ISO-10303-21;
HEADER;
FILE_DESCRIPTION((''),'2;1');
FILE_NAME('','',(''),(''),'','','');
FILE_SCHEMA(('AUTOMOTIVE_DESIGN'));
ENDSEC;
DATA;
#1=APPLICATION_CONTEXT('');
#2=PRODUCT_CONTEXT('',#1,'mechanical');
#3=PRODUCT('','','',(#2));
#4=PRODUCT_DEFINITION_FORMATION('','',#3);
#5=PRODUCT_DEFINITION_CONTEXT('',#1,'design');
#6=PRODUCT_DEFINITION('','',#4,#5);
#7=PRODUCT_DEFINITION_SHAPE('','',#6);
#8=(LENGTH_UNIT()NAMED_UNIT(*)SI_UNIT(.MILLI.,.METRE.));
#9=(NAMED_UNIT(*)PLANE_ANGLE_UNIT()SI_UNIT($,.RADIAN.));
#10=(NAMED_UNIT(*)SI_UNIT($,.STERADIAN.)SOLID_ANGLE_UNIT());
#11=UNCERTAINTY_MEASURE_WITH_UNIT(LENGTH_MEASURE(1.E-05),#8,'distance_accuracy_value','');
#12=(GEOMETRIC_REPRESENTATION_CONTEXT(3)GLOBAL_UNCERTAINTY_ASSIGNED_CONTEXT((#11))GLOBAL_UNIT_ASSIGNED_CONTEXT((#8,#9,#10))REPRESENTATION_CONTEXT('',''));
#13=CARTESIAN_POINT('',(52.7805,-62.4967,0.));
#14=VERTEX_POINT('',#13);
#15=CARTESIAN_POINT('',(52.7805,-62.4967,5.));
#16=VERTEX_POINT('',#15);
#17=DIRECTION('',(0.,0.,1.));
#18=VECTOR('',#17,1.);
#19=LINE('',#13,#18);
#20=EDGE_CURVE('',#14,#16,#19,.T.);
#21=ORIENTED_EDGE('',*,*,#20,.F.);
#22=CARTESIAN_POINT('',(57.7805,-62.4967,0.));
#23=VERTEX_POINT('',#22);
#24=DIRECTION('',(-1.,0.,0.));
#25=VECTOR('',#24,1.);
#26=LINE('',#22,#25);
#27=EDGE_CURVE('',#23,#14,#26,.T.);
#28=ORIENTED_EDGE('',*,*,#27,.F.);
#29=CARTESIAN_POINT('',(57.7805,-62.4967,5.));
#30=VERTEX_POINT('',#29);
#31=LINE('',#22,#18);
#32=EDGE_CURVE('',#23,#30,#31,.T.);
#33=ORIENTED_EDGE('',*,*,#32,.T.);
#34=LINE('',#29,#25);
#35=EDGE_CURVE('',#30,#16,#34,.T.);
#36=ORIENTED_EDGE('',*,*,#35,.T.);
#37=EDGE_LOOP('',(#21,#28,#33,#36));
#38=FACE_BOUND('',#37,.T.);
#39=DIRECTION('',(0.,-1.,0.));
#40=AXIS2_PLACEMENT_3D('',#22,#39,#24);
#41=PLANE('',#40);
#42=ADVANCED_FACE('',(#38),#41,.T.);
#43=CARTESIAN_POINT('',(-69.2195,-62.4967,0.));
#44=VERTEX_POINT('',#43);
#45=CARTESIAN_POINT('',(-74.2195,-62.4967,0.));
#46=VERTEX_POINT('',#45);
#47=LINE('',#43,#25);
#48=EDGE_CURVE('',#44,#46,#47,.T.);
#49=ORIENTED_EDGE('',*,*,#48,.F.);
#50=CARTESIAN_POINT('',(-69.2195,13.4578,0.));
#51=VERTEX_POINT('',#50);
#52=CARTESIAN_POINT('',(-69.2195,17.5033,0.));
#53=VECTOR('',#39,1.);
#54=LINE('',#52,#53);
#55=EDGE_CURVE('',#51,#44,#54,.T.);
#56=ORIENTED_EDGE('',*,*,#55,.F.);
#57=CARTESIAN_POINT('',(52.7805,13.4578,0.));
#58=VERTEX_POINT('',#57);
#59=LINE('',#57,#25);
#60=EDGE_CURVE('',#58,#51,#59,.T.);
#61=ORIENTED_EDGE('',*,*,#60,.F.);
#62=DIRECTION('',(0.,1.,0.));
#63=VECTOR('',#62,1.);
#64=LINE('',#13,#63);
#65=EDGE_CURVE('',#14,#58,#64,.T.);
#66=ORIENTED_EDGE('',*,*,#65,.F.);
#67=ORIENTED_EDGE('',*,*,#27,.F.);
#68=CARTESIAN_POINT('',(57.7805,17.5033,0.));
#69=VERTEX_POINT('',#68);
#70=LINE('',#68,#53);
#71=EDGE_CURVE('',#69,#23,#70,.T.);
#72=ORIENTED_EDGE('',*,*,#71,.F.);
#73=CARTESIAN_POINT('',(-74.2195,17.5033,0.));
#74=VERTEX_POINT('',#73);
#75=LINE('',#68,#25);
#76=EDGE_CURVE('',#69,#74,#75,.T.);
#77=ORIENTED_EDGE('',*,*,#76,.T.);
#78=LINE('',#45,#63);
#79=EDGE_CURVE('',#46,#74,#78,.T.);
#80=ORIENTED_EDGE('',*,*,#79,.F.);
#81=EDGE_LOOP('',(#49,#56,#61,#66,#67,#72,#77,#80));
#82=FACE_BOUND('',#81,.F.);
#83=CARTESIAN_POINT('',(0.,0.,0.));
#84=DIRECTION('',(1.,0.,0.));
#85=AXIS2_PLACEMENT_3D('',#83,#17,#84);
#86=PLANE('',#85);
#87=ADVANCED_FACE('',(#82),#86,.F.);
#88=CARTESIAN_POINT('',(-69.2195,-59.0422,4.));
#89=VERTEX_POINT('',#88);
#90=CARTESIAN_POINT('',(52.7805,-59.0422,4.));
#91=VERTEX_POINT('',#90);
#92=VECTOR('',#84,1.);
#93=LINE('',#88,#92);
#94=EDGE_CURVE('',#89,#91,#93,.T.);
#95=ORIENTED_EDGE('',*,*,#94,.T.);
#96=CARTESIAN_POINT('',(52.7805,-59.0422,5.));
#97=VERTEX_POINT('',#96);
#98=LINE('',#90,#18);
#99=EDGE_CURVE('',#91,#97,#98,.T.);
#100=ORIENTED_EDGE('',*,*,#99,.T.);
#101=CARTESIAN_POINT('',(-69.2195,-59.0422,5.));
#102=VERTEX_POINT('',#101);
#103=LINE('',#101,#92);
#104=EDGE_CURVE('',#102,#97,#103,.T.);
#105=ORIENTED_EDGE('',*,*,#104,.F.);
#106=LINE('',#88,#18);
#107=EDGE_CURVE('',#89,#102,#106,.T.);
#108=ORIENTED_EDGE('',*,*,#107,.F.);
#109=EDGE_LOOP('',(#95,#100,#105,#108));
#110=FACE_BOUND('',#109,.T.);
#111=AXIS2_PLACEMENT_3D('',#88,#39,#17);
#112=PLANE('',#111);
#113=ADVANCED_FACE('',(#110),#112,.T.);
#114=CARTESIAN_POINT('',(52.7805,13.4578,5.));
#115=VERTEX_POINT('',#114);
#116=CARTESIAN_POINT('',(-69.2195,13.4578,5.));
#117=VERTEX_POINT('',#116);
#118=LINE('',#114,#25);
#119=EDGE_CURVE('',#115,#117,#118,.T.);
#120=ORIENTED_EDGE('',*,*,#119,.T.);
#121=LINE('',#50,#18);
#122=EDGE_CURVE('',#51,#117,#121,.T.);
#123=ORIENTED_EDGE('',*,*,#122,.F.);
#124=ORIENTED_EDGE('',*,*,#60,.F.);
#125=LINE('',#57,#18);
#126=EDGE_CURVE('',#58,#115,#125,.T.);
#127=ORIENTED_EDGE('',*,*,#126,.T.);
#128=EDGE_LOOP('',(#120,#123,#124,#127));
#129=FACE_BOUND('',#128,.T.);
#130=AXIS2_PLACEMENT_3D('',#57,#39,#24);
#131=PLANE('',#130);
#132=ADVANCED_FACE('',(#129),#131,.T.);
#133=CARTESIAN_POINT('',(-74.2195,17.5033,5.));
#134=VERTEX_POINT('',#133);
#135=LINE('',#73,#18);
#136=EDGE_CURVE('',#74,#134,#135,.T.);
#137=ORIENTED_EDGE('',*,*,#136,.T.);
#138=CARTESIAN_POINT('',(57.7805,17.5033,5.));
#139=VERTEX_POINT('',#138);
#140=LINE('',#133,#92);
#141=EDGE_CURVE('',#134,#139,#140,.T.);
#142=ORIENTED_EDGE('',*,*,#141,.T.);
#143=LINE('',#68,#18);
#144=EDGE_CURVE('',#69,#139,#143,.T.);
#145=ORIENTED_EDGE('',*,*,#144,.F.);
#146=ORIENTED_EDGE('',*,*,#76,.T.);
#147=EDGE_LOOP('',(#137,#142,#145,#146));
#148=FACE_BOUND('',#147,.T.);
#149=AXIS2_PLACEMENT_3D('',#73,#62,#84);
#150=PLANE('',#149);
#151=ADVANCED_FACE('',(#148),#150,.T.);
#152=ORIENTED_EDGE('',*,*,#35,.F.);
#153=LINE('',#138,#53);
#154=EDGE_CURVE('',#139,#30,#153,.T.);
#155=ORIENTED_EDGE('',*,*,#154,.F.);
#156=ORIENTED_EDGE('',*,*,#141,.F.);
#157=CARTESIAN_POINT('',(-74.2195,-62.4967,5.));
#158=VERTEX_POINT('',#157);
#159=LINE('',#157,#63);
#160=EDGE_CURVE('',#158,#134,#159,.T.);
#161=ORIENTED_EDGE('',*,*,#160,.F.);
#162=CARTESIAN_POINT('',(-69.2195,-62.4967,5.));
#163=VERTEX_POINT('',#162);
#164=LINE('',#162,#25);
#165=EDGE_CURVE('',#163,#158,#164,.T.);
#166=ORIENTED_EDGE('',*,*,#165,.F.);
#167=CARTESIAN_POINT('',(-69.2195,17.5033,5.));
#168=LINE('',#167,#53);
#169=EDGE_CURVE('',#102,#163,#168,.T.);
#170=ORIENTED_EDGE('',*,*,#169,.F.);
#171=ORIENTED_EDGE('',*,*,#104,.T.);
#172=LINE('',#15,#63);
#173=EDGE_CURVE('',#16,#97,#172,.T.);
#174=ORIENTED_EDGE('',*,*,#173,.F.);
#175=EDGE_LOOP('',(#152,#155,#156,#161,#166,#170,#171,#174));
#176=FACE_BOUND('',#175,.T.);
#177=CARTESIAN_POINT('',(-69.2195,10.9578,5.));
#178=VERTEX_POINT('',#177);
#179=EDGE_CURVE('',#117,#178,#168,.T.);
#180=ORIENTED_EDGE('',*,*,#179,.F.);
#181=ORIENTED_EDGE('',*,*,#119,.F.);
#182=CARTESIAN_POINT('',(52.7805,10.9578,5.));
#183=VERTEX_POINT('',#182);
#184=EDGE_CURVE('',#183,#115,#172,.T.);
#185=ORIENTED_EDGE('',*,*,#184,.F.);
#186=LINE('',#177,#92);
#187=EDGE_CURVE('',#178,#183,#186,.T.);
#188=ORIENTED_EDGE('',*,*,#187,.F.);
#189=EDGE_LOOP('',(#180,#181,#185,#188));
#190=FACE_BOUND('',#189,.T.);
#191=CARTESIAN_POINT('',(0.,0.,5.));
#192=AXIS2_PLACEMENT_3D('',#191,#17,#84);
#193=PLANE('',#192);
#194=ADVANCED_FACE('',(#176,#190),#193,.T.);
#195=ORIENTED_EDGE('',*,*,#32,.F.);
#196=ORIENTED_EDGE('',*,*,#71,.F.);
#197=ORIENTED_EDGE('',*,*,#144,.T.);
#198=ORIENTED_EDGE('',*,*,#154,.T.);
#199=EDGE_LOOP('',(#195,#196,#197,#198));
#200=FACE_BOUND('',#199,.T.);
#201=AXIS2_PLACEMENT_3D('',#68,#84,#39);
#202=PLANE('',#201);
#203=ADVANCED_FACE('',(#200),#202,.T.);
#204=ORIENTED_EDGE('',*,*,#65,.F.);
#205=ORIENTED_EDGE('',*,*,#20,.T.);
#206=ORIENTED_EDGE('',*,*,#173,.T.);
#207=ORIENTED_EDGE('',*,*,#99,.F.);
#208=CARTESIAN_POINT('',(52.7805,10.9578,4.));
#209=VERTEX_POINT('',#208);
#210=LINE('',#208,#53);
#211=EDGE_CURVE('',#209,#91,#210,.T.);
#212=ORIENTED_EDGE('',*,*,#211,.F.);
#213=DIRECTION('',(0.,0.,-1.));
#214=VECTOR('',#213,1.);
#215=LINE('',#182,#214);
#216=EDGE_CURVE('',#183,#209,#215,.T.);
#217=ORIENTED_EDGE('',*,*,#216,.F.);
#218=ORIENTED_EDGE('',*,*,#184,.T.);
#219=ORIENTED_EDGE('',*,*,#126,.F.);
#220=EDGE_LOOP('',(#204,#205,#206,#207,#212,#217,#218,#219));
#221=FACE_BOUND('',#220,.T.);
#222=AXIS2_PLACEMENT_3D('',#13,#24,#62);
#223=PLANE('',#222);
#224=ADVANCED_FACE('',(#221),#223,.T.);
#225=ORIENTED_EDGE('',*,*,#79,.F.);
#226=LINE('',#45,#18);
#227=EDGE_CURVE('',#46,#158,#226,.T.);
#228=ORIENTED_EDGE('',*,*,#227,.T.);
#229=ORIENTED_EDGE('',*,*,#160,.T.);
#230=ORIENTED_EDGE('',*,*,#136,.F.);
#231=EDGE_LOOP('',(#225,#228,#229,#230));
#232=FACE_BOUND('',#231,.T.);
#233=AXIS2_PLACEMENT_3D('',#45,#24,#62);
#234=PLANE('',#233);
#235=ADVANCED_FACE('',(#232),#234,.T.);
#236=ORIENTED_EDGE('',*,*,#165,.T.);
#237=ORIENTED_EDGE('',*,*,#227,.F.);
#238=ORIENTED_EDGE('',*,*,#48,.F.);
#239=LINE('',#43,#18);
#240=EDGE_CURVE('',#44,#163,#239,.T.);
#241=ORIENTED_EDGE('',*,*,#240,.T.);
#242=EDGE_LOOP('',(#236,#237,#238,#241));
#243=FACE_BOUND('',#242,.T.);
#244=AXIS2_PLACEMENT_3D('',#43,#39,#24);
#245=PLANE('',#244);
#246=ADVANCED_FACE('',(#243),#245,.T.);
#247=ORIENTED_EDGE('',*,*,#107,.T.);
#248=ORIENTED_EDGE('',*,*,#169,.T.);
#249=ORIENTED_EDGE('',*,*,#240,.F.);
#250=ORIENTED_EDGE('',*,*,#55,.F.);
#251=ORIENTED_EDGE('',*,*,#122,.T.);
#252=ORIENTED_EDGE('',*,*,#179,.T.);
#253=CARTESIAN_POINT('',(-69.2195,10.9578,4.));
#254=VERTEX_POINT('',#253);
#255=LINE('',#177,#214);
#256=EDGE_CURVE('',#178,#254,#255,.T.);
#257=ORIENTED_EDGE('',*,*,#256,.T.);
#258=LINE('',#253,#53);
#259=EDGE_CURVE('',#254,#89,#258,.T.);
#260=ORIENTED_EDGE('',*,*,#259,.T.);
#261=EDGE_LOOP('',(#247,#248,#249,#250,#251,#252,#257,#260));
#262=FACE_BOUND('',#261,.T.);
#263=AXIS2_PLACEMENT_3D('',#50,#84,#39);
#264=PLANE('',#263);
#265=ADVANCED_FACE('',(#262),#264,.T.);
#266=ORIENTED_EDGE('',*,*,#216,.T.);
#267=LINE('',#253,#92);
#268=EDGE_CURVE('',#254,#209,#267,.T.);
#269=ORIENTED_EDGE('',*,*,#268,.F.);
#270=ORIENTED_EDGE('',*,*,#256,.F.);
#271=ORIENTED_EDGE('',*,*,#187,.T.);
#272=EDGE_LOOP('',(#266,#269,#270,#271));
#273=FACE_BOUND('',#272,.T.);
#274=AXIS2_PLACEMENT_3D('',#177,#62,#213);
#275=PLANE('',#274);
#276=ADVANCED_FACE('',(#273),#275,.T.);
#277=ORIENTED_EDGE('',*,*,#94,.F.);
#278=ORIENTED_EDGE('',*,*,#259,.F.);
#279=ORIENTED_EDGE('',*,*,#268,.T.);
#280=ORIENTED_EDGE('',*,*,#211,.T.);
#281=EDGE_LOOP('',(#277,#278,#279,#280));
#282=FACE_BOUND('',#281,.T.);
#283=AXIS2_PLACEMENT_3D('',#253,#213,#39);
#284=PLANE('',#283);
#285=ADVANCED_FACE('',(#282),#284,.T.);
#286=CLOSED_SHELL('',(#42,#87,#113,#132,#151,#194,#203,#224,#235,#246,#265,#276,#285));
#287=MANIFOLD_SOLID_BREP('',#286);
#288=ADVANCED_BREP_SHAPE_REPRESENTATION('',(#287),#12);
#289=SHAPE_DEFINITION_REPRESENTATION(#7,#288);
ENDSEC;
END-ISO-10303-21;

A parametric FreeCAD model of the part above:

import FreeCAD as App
import Part
import Sketcher
from FreeCAD import Vector
Q = App.Units.Quantity

doc = App.newDocument("Part")
body = doc.addObject("PartDesign::Body", "Body")

# Sketch on XY plane
sketch1 = body.newObject("Sketcher::SketchObject", "Sketch")
sketch1.AttachmentSupport = (doc.getObject("XY_Plane"), [""])
sketch1.MapMode = "FlatFace"
sketch1.addGeometry(Part.LineSegment(Vector(-74.2195, 17.5033, 0), Vector(-74.2195, -62.4967, 0)), False)
sketch1.addGeometry(Part.LineSegment(Vector(-74.2195, -62.4967, 0), Vector(-69.2195, -62.4967, 0)), False)
sketch1.addGeometry(Part.LineSegment(Vector(-69.2195, -62.4967, 0), Vector(-69.2195, 13.4578, 0)), False)
sketch1.addGeometry(Part.LineSegment(Vector(-69.2195, 13.4578, 0), Vector(52.7805, 13.4578, 0)), False)
sketch1.addGeometry(Part.LineSegment(Vector(52.7805, 13.4578, 0), Vector(52.7805, -62.4967, 0)), False)
sketch1.addGeometry(Part.LineSegment(Vector(52.7805, -62.4967, 0), Vector(57.7805, -62.4967, 0)), False)
sketch1.addGeometry(Part.LineSegment(Vector(57.7805, -62.4967, 0), Vector(57.7805, 17.5033, 0)), False)
sketch1.addGeometry(Part.LineSegment(Vector(57.7805, 17.5033, 0), Vector(-74.2195, 17.5033, 0)), False)
sketch1.addConstraint(Sketcher.Constraint("Coincident", 0, 2, 1, 1))
sketch1.addConstraint(Sketcher.Constraint("Coincident", 1, 2, 2, 1))
sketch1.addConstraint(Sketcher.Constraint("Coincident", 2, 2, 3, 1))
sketch1.addConstraint(Sketcher.Constraint("Coincident", 3, 2, 4, 1))
sketch1.addConstraint(Sketcher.Constraint("Coincident", 4, 2, 5, 1))
sketch1.addConstraint(Sketcher.Constraint("Coincident", 5, 2, 6, 1))
sketch1.addConstraint(Sketcher.Constraint("Coincident", 6, 2, 7, 1))
sketch1.addConstraint(Sketcher.Constraint("Coincident", 7, 2, 0, 1))
sketch1.addConstraint(Sketcher.Constraint("Vertical", 0))
sketch1.addConstraint(Sketcher.Constraint("Horizontal", 1))
sketch1.addConstraint(Sketcher.Constraint("Vertical", 2))
sketch1.addConstraint(Sketcher.Constraint("Horizontal", 3))
sketch1.addConstraint(Sketcher.Constraint("Vertical", 4))
sketch1.addConstraint(Sketcher.Constraint("Horizontal", 5))
sketch1.addConstraint(Sketcher.Constraint("Vertical", 6))
sketch1.addConstraint(Sketcher.Constraint("Horizontal", 7))
sketch1.addConstraint(Sketcher.Constraint("Horizontal", 1, 2, 4, 2))
sketch1.addConstraint(Sketcher.Constraint("Equal", 1, 5))
sketch1.addConstraint(Sketcher.Constraint("DistanceX", 1, 1, 1, 2, Q("5 mm")))
sketch1.addConstraint(Sketcher.Constraint("DistanceX", 3, 1, 3, 2, Q("122 mm")))
sketch1.addConstraint(Sketcher.Constraint("DistanceY", 0, 2, 0, 1, Q("80 mm")))
sketch1.addConstraint(Sketcher.Constraint("DistanceY", 2, 1, 2, 2, Q("75.9545 mm")))
sketch1.addConstraint(Sketcher.Constraint("DistanceX", 0, 2, -1, 1, Q("74.2195 mm")))
sketch1.addConstraint(Sketcher.Constraint("DistanceY", 0, 2, -1, 1, Q("62.4967 mm")))
pad1 = body.newObject("PartDesign::Pad", "Pad")
pad1.Profile = sketch1
pad1.Length = 5

# Sketch on YZ plane
sketch2 = body.newObject("Sketcher::SketchObject", "Sketch001")
sketch2.AttachmentSupport = (doc.getObject("YZ_Plane"), [""])
sketch2.MapMode = "FlatFace"
sketch2.AttachmentOffset = App.Placement(Vector(0, 0, -69.2195), App.Rotation())
sketch2.addGeometry(Part.LineSegment(Vector(10.9578, 4, 0), Vector(10.9578, 5, 0)), False)
sketch2.addGeometry(Part.LineSegment(Vector(10.9578, 5, 0), Vector(-59.0422, 5, 0)), False)
sketch2.addGeometry(Part.LineSegment(Vector(-59.0422, 5, 0), Vector(-59.0422, 4, 0)), False)
sketch2.addGeometry(Part.LineSegment(Vector(-59.0422, 4, 0), Vector(10.9578, 4, 0)), False)
sketch2.addConstraint(Sketcher.Constraint("Coincident", 0, 2, 1, 1))
sketch2.addConstraint(Sketcher.Constraint("Coincident", 1, 2, 2, 1))
sketch2.addConstraint(Sketcher.Constraint("Coincident", 2, 2, 3, 1))
sketch2.addConstraint(Sketcher.Constraint("Coincident", 3, 2, 0, 1))
sketch2.addConstraint(Sketcher.Constraint("Vertical", 0))
sketch2.addConstraint(Sketcher.Constraint("Horizontal", 1))
sketch2.addConstraint(Sketcher.Constraint("Vertical", 2))
sketch2.addConstraint(Sketcher.Constraint("Horizontal", 3))
sketch2.addConstraint(Sketcher.Constraint("DistanceX", 1, 2, 1, 1, Q("70 mm")))
sketch2.addConstraint(Sketcher.Constraint("DistanceY", 0, 1, 0, 2, Q("1 mm")))
sketch2.addConstraint(Sketcher.Constraint("DistanceY", -1, 1, 0, 2, Q("5 mm")))
sketch2.addConstraint(Sketcher.Constraint("DistanceX", -1, 1, 0, 2, Q("10.9578 mm")))
pad2 = body.newObject("PartDesign::Pad", "Pad001")
pad2.Profile = sketch2
pad2.Length = 122

doc.recompute()
